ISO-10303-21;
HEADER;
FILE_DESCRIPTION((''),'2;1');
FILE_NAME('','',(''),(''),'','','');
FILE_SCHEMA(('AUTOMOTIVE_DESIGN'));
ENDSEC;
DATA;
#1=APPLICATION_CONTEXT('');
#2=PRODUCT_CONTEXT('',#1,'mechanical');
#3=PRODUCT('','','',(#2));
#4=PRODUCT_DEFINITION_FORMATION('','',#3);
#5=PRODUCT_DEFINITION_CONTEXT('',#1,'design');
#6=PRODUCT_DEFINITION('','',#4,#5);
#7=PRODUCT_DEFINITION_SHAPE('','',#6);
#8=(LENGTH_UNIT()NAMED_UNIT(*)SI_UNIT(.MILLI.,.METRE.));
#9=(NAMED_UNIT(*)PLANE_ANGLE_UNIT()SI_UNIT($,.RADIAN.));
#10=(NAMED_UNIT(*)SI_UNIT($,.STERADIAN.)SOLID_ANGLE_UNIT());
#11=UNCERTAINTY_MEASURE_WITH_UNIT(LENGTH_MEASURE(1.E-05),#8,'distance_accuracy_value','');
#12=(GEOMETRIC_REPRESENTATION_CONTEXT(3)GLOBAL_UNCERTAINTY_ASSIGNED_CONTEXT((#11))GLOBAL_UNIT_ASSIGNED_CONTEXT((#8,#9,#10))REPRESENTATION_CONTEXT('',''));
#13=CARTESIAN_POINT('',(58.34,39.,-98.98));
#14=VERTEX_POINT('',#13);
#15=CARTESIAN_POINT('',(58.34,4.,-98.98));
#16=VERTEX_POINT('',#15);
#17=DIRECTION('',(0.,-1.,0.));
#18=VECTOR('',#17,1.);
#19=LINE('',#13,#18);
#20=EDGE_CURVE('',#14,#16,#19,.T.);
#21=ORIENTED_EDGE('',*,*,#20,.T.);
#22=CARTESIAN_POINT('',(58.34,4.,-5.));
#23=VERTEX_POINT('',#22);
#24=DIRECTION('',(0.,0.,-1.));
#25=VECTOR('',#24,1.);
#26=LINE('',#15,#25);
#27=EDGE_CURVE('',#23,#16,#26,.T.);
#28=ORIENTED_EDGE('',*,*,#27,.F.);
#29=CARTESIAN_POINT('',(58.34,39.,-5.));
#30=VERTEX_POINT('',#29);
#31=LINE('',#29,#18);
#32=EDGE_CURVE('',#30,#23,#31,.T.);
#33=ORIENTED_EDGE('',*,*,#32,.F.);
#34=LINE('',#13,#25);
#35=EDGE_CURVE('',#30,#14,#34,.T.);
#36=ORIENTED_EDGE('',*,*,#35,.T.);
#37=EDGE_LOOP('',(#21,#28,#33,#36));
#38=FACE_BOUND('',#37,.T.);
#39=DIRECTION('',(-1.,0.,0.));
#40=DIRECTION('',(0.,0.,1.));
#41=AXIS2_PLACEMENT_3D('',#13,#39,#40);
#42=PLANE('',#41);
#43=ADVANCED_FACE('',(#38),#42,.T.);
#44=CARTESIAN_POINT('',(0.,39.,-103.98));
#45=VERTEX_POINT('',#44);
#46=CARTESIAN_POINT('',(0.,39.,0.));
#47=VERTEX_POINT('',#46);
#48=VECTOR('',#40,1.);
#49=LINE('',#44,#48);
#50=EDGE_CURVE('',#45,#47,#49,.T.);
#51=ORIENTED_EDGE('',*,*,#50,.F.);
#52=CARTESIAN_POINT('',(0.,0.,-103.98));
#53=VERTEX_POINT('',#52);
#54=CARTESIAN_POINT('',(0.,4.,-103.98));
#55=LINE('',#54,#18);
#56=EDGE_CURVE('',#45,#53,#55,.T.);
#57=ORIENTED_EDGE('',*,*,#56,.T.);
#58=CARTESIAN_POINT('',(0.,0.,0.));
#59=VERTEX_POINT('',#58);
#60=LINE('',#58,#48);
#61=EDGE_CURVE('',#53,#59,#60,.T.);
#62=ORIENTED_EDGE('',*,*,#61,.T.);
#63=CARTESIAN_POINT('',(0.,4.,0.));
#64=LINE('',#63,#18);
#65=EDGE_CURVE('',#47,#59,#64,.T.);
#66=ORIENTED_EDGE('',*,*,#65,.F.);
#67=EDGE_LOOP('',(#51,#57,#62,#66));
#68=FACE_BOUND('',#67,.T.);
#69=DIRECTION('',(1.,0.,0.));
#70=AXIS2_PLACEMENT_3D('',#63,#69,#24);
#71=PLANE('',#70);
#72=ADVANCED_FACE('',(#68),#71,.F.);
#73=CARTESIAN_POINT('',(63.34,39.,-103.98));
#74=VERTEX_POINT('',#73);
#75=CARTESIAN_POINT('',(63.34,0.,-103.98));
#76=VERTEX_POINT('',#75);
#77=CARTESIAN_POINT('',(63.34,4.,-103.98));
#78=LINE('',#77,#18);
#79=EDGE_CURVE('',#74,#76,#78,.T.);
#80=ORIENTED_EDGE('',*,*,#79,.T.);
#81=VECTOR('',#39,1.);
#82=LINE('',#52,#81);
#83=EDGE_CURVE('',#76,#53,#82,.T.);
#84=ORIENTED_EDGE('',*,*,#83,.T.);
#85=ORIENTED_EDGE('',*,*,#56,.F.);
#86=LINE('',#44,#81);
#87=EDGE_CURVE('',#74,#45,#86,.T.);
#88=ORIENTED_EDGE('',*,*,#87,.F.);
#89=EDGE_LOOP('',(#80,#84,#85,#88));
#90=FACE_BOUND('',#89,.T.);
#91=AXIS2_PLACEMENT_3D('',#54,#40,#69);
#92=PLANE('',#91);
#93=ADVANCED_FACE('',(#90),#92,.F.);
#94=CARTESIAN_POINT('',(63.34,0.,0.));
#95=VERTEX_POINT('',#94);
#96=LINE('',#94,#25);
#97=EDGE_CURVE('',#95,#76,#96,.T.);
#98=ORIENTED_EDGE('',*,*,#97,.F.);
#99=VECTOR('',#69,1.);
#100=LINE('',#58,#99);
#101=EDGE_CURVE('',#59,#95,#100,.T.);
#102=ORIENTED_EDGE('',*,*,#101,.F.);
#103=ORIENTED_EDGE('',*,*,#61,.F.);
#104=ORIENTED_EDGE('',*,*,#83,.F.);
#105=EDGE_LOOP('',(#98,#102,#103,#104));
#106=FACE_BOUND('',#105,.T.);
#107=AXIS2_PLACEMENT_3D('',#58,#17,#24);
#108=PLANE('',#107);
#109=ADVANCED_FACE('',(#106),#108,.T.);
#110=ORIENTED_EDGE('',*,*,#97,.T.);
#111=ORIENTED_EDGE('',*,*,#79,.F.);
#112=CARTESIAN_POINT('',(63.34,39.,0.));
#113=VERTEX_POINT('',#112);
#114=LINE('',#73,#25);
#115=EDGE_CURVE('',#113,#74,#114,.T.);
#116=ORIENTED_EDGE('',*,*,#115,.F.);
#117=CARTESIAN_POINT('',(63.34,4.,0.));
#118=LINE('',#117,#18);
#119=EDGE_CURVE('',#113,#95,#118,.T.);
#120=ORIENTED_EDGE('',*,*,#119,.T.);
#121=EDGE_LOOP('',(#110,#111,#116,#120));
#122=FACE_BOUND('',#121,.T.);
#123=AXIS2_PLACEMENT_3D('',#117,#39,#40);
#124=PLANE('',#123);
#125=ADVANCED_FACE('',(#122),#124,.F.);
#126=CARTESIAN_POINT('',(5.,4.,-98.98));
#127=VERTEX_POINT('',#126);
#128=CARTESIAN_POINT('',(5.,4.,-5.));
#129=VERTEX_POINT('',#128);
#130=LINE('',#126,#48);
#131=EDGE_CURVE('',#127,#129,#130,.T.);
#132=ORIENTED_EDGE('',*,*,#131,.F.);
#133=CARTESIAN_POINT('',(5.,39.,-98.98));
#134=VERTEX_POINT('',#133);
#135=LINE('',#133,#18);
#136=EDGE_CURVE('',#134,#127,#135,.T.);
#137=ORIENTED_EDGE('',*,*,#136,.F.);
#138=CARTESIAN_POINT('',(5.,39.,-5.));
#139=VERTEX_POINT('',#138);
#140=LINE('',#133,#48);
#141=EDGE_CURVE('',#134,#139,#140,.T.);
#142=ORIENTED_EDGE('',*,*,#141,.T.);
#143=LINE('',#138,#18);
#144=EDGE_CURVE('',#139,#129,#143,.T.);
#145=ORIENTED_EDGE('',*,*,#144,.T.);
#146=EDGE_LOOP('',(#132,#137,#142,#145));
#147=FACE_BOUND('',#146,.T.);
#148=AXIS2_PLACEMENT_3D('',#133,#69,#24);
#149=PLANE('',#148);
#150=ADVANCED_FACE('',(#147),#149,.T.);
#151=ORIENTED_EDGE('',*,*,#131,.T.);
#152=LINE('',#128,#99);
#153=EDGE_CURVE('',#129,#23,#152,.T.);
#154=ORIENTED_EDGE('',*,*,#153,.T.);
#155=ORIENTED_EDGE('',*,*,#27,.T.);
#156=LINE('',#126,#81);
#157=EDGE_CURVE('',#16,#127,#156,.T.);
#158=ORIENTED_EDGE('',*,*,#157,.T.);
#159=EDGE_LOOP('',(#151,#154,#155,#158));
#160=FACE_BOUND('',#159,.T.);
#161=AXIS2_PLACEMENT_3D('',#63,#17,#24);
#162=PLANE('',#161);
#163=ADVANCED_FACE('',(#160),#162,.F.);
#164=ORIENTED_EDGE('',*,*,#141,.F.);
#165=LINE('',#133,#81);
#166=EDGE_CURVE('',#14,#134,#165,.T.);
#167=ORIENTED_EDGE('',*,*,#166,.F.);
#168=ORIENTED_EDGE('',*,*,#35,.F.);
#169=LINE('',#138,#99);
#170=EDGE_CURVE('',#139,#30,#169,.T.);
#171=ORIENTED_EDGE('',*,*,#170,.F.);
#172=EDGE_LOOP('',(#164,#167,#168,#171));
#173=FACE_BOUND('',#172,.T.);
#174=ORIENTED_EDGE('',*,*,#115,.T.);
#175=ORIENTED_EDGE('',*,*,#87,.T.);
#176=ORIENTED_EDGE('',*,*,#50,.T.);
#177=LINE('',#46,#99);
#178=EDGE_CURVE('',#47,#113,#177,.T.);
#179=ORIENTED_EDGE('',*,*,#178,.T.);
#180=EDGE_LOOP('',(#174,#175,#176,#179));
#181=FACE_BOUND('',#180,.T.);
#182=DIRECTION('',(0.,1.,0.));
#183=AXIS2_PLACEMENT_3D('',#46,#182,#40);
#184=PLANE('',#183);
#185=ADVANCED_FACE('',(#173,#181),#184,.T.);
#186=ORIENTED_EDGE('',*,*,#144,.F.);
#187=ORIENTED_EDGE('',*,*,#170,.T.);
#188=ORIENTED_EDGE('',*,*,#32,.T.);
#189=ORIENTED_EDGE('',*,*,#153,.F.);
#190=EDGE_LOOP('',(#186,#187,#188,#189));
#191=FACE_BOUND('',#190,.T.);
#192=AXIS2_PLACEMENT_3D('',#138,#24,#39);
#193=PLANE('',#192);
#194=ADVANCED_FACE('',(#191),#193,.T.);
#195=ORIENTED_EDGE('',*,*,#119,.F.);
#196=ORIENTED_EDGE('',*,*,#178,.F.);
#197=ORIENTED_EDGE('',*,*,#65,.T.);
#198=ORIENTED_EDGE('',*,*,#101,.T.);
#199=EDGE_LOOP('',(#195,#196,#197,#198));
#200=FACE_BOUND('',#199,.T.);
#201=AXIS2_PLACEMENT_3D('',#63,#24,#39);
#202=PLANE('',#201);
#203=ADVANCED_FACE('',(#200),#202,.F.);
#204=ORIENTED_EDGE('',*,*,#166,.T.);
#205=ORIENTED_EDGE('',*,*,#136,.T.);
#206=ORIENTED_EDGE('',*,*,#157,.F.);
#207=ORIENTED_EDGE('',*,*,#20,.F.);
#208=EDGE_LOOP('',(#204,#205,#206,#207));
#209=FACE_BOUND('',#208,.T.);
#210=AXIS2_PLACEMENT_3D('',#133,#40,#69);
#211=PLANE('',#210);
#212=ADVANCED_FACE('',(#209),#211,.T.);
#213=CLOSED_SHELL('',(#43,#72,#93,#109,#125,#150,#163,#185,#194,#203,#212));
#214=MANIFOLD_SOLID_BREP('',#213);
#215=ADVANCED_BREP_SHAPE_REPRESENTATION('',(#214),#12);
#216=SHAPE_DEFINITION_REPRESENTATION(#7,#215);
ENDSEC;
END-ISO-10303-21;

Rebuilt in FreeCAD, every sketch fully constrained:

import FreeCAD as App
import Part
import Sketcher
from FreeCAD import Vector
Q = App.Units.Quantity

doc = App.newDocument("Part")
params = doc.addObject("Spreadsheet::Sheet", "Params")
for row, (alias, value) in enumerate([
    ("sketch1_width", "63.34 mm"),
    ("sketch1_height", "103.98 mm"),
    ("pad1_length", "4 mm"),
    ("sketch2_width", "63.34 mm"),
    ("sketch2_height", "103.98 mm"),
    ("pad2_length", "35 mm"),
], start=1):
    params.set(f"A{row}", alias)
    params.set(f"B{row}", "=" + value)
    params.setAlias(f"B{row}", alias)

body = doc.addObject("PartDesign::Body", "Body")

# Sketch on XZ plane
sketch1 = body.newObject("Sketcher::SketchObject", "Sketch")
sketch1.AttachmentSupport = (doc.getObject("XZ_Plane"), [""])
sketch1.MapMode = "FlatFace"
sketch1.addGeometry([
    Part.LineSegment(Vector(0, -104, 0), Vector(0, 0, 0)),
    Part.LineSegment(Vector(0, 0, 0), Vector(63, 0, 0)),
    Part.LineSegment(Vector(63, 0, 0), Vector(63, -104, 0)),
    Part.LineSegment(Vector(63, -104, 0), Vector(0, -104, 0)),
], False)
sketch1.addConstraint([
    Sketcher.Constraint("Coincident", 0, 2, 1, 1),
    Sketcher.Constraint("Coincident", 1, 2, 2, 1),
    Sketcher.Constraint("Coincident", 2, 2, 3, 1),
    Sketcher.Constraint("Coincident", 3, 2, 0, 1),
    Sketcher.Constraint("Vertical", 0),
    Sketcher.Constraint("Horizontal", 1),
    Sketcher.Constraint("Vertical", 2),
    Sketcher.Constraint("Horizontal", 3),
    Sketcher.Constraint("Coincident", 0, 2, -1, 1),
    Sketcher.Constraint("DistanceX", 1, 1, 1, 2, Q("63.34 mm")),
    Sketcher.Constraint("DistanceY", 0, 1, 0, 2, Q("103.98 mm")),
])
sketch1.setExpression("Constraints[9]", "Params.sketch1_width")
sketch1.setExpression("Constraints[10]", "Params.sketch1_height")
pad1 = body.newObject("PartDesign::Pad", "Pad")
pad1.Profile = sketch1
pad1.setExpression("Length", "Params.pad1_length")
pad1.Reversed = True

# Sketch on XZ plane
sketch2 = body.newObject("Sketcher::SketchObject", "Sketch001")
sketch2.AttachmentSupport = (doc.getObject("XZ_Plane"), [""])
sketch2.MapMode = "FlatFace"
sketch2.AttachmentOffset = App.Placement(Vector(0, 0, -4), App.Rotation())
sketch2.addGeometry([
    Part.LineSegment(Vector(0, -104, 0), Vector(0, 0, 0)),  # 0
    Part.LineSegment(Vector(0, 0, 0), Vector(63, 0, 0)),  # 1
    Part.LineSegment(Vector(63, 0, 0), Vector(63, -104, 0)),  # 2
    Part.LineSegment(Vector(63, -104, 0), Vector(0, -104, 0)),  # 3
    Part.LineSegment(Vector(58, -5, 0), Vector(5, -5, 0)),  # 4
    Part.LineSegment(Vector(5, -5, 0), Vector(5, -99, 0)),  # 5
    Part.LineSegment(Vector(5, -99, 0), Vector(58, -99, 0)),  # 6
    Part.LineSegment(Vector(58, -99, 0), Vector(58, -5, 0)),  # 7
], False)
sketch2.addConstraint([
    Sketcher.Constraint("Coincident", 0, 2, 1, 1),
    Sketcher.Constraint("Coincident", 1, 2, 2, 1),
    Sketcher.Constraint("Coincident", 2, 2, 3, 1),
    Sketcher.Constraint("Coincident", 3, 2, 0, 1),
    Sketcher.Constraint("Coincident", 4, 2, 5, 1),
    Sketcher.Constraint("Coincident", 5, 2, 6, 1),
    Sketcher.Constraint("Coincident", 6, 2, 7, 1),
    Sketcher.Constraint("Coincident", 7, 2, 4, 1),
    Sketcher.Constraint("Vertical", 0),
    Sketcher.Constraint("Horizontal", 1),
    Sketcher.Constraint("Vertical", 2),
    Sketcher.Constraint("Horizontal", 3),
    Sketcher.Constraint("Horizontal", 4),
    Sketcher.Constraint("Vertical", 5),
    Sketcher.Constraint("Horizontal", 6),
    Sketcher.Constraint("Vertical", 7),
    Sketcher.Constraint("Coincident", 0, 2, -1, 1),
    Sketcher.Constraint("DistanceX", -1, 1, 4, 2, Q("5 mm")),
    Sketcher.Constraint("DistanceY", 4, 2, -1, 1, Q("5 mm")),
    Sketcher.Constraint("DistanceY", 3, 2, 5, 2, Q("5 mm")),
    Sketcher.Constraint("DistanceX", 6, 2, 2, 2, Q("5 mm")),
    Sketcher.Constraint("DistanceX", 1, 1, 1, 2, Q("63.34 mm")),
    Sketcher.Constraint("DistanceY", 0, 1, 0, 2, Q("103.98 mm")),
])
sketch2.setExpression("Constraints[21]", "Params.sketch2_width")
sketch2.setExpression("Constraints[22]", "Params.sketch2_height")
pad2 = body.newObject("PartDesign::Pad", "Pad001")
pad2.Profile = sketch2
pad2.setExpression("Length", "Params.pad2_length")
pad2.Reversed = True

doc.recompute()
